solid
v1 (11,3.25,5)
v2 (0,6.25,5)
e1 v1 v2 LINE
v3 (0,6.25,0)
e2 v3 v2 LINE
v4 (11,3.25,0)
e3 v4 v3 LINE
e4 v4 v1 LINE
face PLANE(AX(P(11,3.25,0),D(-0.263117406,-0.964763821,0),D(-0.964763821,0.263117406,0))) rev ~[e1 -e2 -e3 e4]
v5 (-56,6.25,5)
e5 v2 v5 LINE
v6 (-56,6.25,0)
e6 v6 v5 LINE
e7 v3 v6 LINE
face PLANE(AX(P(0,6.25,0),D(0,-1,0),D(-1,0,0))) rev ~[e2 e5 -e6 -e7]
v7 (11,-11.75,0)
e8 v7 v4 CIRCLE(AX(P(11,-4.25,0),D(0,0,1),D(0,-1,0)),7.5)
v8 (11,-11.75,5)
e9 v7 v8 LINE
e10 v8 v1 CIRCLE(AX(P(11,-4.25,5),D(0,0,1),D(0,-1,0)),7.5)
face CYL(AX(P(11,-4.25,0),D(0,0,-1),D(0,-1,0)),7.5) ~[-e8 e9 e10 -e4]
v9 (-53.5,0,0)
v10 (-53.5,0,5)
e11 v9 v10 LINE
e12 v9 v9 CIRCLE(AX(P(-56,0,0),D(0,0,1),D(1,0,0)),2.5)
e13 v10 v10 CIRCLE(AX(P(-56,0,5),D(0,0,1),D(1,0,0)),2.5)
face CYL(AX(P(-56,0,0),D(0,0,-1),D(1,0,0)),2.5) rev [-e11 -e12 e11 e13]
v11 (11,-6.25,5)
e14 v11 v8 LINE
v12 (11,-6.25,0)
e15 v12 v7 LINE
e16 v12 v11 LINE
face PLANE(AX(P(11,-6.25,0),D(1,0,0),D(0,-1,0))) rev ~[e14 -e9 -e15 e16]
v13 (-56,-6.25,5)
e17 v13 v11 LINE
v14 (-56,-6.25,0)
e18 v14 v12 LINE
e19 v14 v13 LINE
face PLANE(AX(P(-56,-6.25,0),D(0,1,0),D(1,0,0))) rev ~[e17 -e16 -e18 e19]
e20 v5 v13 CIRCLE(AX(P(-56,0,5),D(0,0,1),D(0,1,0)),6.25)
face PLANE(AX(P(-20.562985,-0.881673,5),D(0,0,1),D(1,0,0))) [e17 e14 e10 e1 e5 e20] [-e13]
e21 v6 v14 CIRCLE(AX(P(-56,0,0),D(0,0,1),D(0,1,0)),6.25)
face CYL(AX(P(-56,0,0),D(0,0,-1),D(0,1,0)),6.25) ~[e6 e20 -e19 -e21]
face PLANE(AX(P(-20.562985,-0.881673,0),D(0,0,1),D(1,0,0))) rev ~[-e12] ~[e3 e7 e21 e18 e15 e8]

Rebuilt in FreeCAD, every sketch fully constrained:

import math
import FreeCAD as App
import Part
import Sketcher
from FreeCAD import Vector
Q = App.Units.Quantity

doc = App.newDocument("Part")
body = doc.addObject("PartDesign::Body", "Body")

# Sketch on XY plane
sketch1 = body.newObject("Sketcher::SketchObject", "Sketch")
sketch1.AttachmentSupport = (doc.getObject("XY_Plane"), [""])
sketch1.MapMode = "FlatFace"
sketch1.addGeometry(Part.LineSegment(Vector(11, 3.2, 0), Vector(0, 6.2, 0)), False)
sketch1.addGeometry(Part.LineSegment(Vector(0, 6.2, 0), Vector(-56, 6.2, 0)), False)
sketch1.addGeometry(Part.ArcOfCircle(Part.Circle(Vector(-56, 0, 0), Vector(0, 0, 1), 6.2), math.radians(90), math.radians(270)), False)
sketch1.addGeometry(Part.LineSegment(Vector(-56, -6.2, 0), Vector(11, -6.2, 0)), False)
sketch1.addGeometry(Part.LineSegment(Vector(11, -6.2, 0), Vector(11, -11.8, 0)), False)
sketch1.addGeometry(Part.ArcOfCircle(Part.Circle(Vector(11, -4.2, 0), Vector(0, 0, 1), 7.5), math.radians(-90), math.radians(90)), False)
sketch1.addGeometry(Part.Circle(Vector(-56, 0, 0), Vector(0, 0, 1), 2.5), False)
sketch1.addConstraint(Sketcher.Constraint("Coincident", 0, 2, 1, 1))
sketch1.addConstraint(Sketcher.Constraint("Tangent", 1, 2, 2, 1))
sketch1.addConstraint(Sketcher.Constraint("Tangent", 2, 2, 3, 1))
sketch1.addConstraint(Sketcher.Constraint("Coincident", 3, 2, 4, 1))
sketch1.addConstraint(Sketcher.Constraint("Coincident", 4, 2, 5, 1))
sketch1.addConstraint(Sketcher.Constraint("Coincident", 5, 2, 0, 1))
sketch1.addConstraint(Sketcher.Constraint("Horizontal", 1))
sketch1.addConstraint(Sketcher.Constraint("Horizontal", 3))
sketch1.addConstraint(Sketcher.Constraint("Vertical", 4))
sketch1.addConstraint(Sketcher.Constraint("Coincident", 6, 3, 2, 3))
sketch1.addConstraint(Sketcher.Constraint("PointOnObject", 2, 3, -1))
sketch1.addConstraint(Sketcher.Constraint("PointOnObject", 0, 2, -2))
sketch1.addConstraint(Sketcher.Constraint("Vertical", 5, 3, 3, 2))
sketch1.addConstraint(Sketcher.Constraint("Vertical", 4, 2, 5, 2))
sketch1.addConstraint(Sketcher.Constraint("Diameter", 6, Q("5 mm")))
sketch1.addConstraint(Sketcher.Constraint("Radius", 5, Q("7.5 mm")))
sketch1.addConstraint(Sketcher.Constraint("DistanceX", 1, 2, 1, 1, Q("56 mm")))
sketch1.addConstraint(Sketcher.Constraint("DistanceX", 3, 1, 3, 2, Q("67 mm")))
sketch1.addConstraint(Sketcher.Constraint("Radius", 2, Q("6.25 mm")))
sketch1.addConstraint(Sketcher.Constraint("DistanceY", 4, 2, 4, 1, Q("5.5 mm")))
pad1 = body.newObject("PartDesign::Pad", "Pad")
pad1.Profile = sketch1
pad1.Length = 5

doc.recompute()
